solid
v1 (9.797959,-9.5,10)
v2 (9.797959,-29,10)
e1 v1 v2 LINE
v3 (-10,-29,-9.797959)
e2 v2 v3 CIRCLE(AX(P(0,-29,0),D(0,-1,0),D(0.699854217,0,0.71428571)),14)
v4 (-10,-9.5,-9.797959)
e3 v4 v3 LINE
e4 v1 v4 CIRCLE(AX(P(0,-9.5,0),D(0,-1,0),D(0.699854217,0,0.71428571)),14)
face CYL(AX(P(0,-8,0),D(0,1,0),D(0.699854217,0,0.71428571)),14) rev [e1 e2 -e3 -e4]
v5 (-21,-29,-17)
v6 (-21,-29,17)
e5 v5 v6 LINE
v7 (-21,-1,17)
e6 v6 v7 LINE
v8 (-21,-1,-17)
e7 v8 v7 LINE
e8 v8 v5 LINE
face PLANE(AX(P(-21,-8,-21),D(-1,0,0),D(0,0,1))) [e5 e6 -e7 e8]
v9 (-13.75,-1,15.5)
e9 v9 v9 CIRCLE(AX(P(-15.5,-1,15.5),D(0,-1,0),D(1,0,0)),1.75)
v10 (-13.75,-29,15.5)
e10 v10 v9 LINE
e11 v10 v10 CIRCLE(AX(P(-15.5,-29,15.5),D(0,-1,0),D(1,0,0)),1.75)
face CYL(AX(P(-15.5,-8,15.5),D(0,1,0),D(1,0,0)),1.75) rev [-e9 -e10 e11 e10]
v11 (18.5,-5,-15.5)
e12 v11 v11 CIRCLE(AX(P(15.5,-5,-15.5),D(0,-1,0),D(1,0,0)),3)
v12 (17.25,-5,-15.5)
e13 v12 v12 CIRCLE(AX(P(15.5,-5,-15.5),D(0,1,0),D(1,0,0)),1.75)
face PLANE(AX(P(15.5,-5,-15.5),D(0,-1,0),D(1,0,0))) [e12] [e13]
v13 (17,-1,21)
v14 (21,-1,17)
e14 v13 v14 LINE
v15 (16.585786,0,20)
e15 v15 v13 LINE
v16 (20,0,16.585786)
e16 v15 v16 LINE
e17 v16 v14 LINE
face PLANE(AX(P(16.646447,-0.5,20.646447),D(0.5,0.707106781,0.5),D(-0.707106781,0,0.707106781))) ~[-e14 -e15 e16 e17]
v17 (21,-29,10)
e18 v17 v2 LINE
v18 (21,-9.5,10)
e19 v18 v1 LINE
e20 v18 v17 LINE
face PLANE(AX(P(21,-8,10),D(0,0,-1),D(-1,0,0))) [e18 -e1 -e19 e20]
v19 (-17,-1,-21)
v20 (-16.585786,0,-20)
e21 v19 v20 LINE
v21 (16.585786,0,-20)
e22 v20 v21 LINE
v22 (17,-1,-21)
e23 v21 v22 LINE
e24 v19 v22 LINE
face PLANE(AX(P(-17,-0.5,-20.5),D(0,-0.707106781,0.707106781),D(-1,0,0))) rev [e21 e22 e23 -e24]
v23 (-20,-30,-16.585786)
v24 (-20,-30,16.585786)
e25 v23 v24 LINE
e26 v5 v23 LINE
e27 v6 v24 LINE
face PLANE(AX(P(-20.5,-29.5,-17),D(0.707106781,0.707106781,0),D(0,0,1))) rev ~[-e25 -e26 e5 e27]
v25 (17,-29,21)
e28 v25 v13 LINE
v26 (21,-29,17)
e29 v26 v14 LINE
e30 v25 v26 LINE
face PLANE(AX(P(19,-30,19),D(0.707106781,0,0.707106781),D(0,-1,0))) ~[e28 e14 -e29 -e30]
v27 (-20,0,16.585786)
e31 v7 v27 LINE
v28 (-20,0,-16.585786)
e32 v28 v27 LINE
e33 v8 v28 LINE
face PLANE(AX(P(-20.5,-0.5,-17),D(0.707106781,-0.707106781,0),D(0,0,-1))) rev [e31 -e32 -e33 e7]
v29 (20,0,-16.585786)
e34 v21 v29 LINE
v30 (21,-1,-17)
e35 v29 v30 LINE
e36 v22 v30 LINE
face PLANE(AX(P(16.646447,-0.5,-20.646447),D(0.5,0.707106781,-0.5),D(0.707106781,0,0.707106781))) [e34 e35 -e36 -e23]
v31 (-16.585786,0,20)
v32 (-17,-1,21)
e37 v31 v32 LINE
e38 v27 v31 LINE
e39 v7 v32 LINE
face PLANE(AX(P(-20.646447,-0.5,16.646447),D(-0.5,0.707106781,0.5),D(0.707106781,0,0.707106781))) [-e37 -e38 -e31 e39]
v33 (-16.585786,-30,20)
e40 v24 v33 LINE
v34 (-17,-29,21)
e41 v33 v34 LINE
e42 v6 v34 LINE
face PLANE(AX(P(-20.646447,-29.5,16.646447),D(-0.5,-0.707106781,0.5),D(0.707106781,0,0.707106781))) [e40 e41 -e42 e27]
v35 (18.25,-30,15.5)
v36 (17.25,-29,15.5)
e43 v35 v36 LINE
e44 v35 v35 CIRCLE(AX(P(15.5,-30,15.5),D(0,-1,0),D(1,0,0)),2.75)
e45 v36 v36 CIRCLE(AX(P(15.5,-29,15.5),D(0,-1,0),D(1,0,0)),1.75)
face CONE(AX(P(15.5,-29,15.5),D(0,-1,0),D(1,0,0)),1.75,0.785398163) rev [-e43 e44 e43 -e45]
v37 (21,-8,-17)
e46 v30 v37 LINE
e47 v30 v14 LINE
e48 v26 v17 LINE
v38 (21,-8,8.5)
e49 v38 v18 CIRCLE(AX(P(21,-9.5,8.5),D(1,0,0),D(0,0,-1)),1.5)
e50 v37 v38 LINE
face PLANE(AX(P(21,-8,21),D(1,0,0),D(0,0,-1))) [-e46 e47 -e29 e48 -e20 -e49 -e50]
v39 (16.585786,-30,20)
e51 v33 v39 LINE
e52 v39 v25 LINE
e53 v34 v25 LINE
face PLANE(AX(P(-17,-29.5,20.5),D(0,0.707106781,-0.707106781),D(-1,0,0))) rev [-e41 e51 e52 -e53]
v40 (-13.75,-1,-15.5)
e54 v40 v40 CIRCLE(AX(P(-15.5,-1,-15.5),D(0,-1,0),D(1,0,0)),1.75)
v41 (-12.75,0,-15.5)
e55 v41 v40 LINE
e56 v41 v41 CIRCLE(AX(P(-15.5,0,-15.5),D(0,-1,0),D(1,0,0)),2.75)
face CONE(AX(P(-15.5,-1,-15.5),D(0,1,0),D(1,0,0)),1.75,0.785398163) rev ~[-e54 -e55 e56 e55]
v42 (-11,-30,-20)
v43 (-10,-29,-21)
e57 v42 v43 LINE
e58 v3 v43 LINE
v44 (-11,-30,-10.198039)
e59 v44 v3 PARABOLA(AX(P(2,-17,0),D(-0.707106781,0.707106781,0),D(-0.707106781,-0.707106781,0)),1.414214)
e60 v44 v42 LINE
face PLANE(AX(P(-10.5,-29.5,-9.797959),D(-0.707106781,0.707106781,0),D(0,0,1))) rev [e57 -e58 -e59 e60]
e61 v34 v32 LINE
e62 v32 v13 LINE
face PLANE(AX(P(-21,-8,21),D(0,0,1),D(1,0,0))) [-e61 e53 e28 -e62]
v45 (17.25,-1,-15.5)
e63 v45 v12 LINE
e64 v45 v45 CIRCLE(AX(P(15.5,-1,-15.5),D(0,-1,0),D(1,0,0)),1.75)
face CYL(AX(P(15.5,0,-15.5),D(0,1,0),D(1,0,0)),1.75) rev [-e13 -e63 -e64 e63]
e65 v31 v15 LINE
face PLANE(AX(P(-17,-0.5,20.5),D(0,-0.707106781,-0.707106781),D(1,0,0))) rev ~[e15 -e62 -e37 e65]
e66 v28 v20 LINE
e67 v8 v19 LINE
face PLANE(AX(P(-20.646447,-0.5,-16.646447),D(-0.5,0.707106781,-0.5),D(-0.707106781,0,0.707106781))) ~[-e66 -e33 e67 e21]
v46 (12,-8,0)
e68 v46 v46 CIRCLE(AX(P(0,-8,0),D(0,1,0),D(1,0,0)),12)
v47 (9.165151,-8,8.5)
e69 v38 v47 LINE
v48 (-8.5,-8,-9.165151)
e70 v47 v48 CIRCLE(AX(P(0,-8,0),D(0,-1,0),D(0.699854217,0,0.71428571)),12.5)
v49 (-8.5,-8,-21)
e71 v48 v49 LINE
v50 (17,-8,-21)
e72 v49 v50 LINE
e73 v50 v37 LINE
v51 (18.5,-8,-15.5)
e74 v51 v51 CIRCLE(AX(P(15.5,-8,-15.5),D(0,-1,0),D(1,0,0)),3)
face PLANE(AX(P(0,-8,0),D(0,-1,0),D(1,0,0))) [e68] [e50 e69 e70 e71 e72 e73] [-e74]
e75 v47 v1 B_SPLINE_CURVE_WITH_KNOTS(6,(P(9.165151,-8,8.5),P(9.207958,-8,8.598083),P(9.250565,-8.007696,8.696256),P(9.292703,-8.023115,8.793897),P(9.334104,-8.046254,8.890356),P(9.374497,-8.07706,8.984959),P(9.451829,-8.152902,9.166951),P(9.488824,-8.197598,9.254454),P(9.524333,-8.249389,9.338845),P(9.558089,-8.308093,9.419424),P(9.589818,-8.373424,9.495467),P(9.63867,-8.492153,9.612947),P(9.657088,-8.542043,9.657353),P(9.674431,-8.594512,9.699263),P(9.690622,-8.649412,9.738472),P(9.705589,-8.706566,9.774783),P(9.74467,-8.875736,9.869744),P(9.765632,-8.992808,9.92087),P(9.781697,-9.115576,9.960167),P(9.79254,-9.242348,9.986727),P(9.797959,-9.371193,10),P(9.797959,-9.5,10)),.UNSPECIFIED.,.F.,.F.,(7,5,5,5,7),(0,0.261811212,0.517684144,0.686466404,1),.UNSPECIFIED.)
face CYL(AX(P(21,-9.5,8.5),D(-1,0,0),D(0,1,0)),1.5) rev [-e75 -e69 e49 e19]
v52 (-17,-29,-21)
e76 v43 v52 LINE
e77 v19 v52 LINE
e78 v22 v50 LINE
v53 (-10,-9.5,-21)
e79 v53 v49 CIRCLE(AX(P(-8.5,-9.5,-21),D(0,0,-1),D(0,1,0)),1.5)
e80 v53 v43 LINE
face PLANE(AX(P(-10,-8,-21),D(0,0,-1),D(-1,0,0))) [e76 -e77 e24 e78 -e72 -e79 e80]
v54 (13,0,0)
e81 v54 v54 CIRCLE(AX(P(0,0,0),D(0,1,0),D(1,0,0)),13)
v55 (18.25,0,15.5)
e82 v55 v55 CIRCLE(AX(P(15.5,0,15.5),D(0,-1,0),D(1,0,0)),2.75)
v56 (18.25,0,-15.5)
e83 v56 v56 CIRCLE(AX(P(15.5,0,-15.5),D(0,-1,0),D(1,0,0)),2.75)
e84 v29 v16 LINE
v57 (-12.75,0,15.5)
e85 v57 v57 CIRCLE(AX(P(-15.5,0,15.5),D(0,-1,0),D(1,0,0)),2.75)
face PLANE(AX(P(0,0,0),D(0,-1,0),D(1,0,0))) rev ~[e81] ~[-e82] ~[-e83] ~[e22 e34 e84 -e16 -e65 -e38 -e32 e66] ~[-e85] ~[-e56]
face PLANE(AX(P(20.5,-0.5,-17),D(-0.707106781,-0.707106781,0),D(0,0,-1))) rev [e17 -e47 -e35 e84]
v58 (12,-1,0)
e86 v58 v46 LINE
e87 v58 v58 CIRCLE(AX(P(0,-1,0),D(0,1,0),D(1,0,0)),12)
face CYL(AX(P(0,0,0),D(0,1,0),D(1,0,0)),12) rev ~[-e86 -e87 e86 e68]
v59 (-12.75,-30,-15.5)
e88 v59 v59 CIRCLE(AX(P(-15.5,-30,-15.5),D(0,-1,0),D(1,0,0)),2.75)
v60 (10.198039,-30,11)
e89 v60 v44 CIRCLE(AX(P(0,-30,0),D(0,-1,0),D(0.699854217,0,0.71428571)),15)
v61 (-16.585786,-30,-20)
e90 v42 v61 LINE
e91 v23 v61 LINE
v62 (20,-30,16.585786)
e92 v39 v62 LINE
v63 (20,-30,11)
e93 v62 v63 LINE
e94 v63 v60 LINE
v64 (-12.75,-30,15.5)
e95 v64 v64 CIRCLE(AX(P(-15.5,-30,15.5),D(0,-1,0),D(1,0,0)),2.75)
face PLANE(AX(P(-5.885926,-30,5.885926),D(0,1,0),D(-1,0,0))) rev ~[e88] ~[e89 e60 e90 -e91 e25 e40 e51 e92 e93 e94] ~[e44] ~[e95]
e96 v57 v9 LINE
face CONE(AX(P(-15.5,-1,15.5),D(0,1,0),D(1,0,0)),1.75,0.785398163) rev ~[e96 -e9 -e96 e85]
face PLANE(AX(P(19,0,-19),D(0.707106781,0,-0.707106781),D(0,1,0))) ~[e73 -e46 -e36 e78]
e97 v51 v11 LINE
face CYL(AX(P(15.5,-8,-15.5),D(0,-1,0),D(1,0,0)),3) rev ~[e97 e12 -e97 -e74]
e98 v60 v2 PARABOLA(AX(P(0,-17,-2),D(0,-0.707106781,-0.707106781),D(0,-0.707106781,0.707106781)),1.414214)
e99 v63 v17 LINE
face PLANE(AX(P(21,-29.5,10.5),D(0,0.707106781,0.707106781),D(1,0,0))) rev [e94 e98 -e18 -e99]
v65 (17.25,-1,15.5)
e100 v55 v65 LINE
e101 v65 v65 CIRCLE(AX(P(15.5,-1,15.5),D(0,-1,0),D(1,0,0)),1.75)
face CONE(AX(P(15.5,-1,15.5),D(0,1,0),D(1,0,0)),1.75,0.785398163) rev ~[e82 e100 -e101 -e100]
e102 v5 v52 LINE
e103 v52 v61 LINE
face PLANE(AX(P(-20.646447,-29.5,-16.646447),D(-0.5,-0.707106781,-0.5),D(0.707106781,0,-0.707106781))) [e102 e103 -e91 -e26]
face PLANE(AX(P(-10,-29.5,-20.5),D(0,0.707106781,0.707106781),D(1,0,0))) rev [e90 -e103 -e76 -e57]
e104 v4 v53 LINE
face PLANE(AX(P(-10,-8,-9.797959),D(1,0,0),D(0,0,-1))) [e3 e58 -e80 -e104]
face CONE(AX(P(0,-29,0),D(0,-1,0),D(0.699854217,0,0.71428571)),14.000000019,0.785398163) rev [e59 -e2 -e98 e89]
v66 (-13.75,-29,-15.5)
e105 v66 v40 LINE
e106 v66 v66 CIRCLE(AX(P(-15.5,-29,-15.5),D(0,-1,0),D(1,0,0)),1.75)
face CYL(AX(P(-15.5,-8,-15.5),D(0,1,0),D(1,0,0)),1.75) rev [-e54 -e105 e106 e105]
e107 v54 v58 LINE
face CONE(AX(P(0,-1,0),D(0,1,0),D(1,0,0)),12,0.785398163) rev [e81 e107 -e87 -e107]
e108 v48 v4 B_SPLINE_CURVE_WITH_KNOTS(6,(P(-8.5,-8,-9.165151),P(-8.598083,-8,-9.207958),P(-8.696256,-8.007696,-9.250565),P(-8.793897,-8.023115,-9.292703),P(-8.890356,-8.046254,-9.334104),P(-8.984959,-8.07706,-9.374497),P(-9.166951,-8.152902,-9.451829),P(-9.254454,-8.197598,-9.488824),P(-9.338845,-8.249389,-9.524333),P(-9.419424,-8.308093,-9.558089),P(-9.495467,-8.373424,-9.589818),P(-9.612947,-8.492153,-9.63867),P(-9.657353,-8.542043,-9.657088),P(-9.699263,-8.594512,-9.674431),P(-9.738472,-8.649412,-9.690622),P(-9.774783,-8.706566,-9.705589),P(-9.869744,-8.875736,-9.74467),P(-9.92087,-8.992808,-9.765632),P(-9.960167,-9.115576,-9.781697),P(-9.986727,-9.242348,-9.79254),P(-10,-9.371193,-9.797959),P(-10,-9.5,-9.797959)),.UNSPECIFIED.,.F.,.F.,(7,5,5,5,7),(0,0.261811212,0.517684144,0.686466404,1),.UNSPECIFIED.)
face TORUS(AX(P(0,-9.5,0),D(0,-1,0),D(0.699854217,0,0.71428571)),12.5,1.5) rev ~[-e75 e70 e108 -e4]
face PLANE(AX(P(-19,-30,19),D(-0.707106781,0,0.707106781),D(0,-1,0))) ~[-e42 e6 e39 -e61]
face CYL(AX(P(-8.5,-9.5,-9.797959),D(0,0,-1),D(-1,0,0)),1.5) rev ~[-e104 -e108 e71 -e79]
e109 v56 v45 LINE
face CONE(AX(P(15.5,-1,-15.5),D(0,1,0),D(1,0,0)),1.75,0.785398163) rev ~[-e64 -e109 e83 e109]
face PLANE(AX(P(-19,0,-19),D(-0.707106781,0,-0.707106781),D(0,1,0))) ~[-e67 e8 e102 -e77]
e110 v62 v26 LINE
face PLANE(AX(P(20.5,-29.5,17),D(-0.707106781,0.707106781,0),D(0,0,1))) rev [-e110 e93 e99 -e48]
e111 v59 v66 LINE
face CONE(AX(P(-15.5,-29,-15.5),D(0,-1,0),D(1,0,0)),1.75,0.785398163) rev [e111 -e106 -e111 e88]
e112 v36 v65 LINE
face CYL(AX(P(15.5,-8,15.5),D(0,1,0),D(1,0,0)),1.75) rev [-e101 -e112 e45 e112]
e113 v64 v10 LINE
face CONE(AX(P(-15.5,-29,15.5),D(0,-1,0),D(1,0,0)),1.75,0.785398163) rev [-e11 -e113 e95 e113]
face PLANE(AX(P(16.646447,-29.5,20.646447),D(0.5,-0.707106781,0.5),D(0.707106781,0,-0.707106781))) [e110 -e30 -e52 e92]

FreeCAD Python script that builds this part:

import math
import FreeCAD as App
import Part
import Sketcher

V = App.Vector


def edges_at(feature, points):
    """Names of the edges that pass closest to the given points."""
    edges = feature.Shape.Edges
    near = lambda p: min(range(len(edges)), key=lambda i: edges[i].distToShape(Part.Vertex(*p))[0])
    return sorted({f"Edge{near(p) + 1}" for p in points})


def add_polygon(sketch, points):
    """Adds a closed chain of lines whose ends are joined by coincident constraints."""
    first, n = sketch.GeometryCount, len(points)
    for a, b in zip(points, points[1:] + points[:1]):
        sketch.addGeometry(Part.LineSegment(App.Vector(*a, 0), App.Vector(*b, 0)), False)
    for i in range(n):
        sketch.addConstraint(Sketcher.Constraint("Coincident", first + i, 2, first + (i + 1) % n, 1))

doc = App.newDocument("Part")
body = doc.addObject("PartDesign::Body", "Body")

# Sketch on XZ plane
sketch1 = body.newObject("Sketcher::SketchObject", "Sketch")
sketch1.AttachmentSupport = (doc.getObject("XZ_Plane"), [""])
sketch1.MapMode = "FlatFace"
add_polygon(sketch1, [(-21, 21), (-21, -21), (21, -21), (21, 21)])  # lines 0-3
sketch1.addGeometry(Part.Circle(V(-15.5, -15.5, 0), V(0, 0, 1), 1.8), False)  # 4
sketch1.addGeometry(Part.Circle(V(15.5, -15.5, 0), V(0, 0, 1), 1.8), False)  # 5
sketch1.addGeometry(Part.Circle(V(-15.5, 15.5, 0), V(0, 0, 1), 1.8), False)  # 6
sketch1.addGeometry(Part.Circle(V(15.5, 15.5, 0), V(0, 0, 1), 1.8), False)  # 7
sketch1.addConstraint([
    Sketcher.Constraint("Vertical", 0),
    Sketcher.Constraint("Horizontal", 1),
    Sketcher.Constraint("Vertical", 2),
    Sketcher.Constraint("Horizontal", 3),
    Sketcher.Constraint("Equal", 4, 5),
    Sketcher.Constraint("Equal", 5, 6),
    Sketcher.Constraint("Equal", 6, 7),
    Sketcher.Constraint("Symmetric", 5, 3, 6, 3, -1, 1),
    Sketcher.Constraint("Symmetric", 4, 3, 7, 3, -1, 1),
    Sketcher.Constraint("Symmetric", 0, 2, 2, 2, -1, 1),
    Sketcher.Constraint("Symmetric", 4, 3, 5, 3, -2),
    Sketcher.Constraint("Equal", 3, 0),
    Sketcher.Constraint("Diameter", 4, 3.5),
    Sketcher.Constraint("DistanceX", 1, 1, 1, 2, 42.0),
    Sketcher.Constraint("DistanceX", 4, 3, 5, 3, 31.0),
    Sketcher.Constraint("DistanceY", 4, 3, 6, 3, 31.0),
])
pad1 = body.newObject("PartDesign::Pad", "Pad")
pad1.Profile = sketch1
pad1.Length = 8

# Sketch on XZ plane
sketch2 = body.newObject("Sketcher::SketchObject", "Sketch001")
sketch2.AttachmentSupport = (doc.getObject("XZ_Plane"), [""])
sketch2.MapMode = "FlatFace"
sketch2.addGeometry(Part.Circle(V(0, 0, 0), V(0, 0, 1), 12), False)
sketch2.addConstraint([
    Sketcher.Constraint("Coincident", 0, 3, -1, 1),
    Sketcher.Constraint("Diameter", 0, 24.0),
])
pocket1 = body.newObject("PartDesign::Pocket", "Pocket")
pocket1.Profile = sketch2
pocket1.Type = "ThroughAll"
pocket1.Reversed = True

# Sketch on XZ plane
sketch3 = body.newObject("Sketcher::SketchObject", "Sketch002")
sketch3.AttachmentSupport = (doc.getObject("XZ_Plane"), [""])
sketch3.MapMode = "FlatFace"
sketch3.AttachmentOffset = App.Placement(V(0, 0, 8), App.Rotation())
sketch3.addGeometry([
    Part.LineSegment(V(-21, 21, 0), V(-21, -21, 0)),  # 0
    Part.LineSegment(V(-21, -21, 0), V(-10, -21, 0)),  # 1
    Part.LineSegment(V(-10, -21, 0), V(-10, -9.8, 0)),  # 2
    Part.ArcOfCircle(Part.Circle(V(0, 0, 0), V(0, 0, 1), 14), math.radians(46), math.radians(224)),  # 3
    Part.LineSegment(V(9.8, 10, 0), V(21, 10, 0)),  # 4
    Part.LineSegment(V(21, 10, 0), V(21, 21, 0)),  # 5
    Part.LineSegment(V(21, 21, 0), V(-21, 21, 0)),  # 6
    Part.Circle(V(-15.5, -15.5, 0), V(0, 0, 1), 1.8),  # 7
    Part.Circle(V(15.5, 15.5, 0), V(0, 0, 1), 1.8),  # 8
    Part.Circle(V(-15.5, 15.5, 0), V(0, 0, 1), 1.8),  # 9
], False)
sketch3.addConstraint([
    Sketcher.Constraint("Coincident", 0, 2, 1, 1),
    Sketcher.Constraint("Coincident", 1, 2, 2, 1),
    Sketcher.Constraint("Coincident", 2, 2, 3, 2),
    Sketcher.Constraint("Coincident", 3, 1, 4, 1),
    Sketcher.Constraint("Coincident", 4, 2, 5, 1),
    Sketcher.Constraint("Coincident", 5, 2, 6, 1),
    Sketcher.Constraint("Coincident", 6, 2, 0, 1),
    Sketcher.Constraint("Vertical", 0),
    Sketcher.Constraint("Horizontal", 1),
    Sketcher.Constraint("Vertical", 2),
    Sketcher.Constraint("Horizontal", 4),
    Sketcher.Constraint("Vertical", 5),
    Sketcher.Constraint("Horizontal", 6),
    Sketcher.Constraint("Coincident", 3, 3, -1, 1),
    Sketcher.Constraint("Equal", 7, 8),
    Sketcher.Constraint("Equal", 8, 9),
    Sketcher.Constraint("Symmetric", 7, 3, 8, 3, -1, 1),
    Sketcher.Constraint("Symmetric", 0, 2, 5, 2, -1, 1),
    Sketcher.Constraint("Symmetric", 8, 3, 9, 3, -2),
    Sketcher.Constraint("Equal", 6, 0),
    Sketcher.Constraint("Equal", 4, 2),
    Sketcher.Constraint("Radius", 3, 14.0),
    Sketcher.Constraint("Diameter", 7, 3.5),
    Sketcher.Constraint("DistanceX", 1, 1, 1, 2, 11.0),
    Sketcher.Constraint("DistanceX", 6, 2, 6, 1, 42.0),
    Sketcher.Constraint("DistanceX", 7, 3, 8, 3, 31.0),
    Sketcher.Constraint("DistanceY", 7, 3, 8, 3, 31.0),
])
pad2 = body.newObject("PartDesign::Pad", "Pad001")
pad2.Profile = sketch3
pad2.Length = 22

# Sketch on XZ plane
sketch4 = body.newObject("Sketcher::SketchObject", "Sketch003")
sketch4.AttachmentSupport = (doc.getObject("XZ_Plane"), [""])
sketch4.MapMode = "FlatFace"
sketch4.AttachmentOffset = App.Placement(V(0, 0, 8), App.Rotation())
sketch4.addGeometry(Part.Circle(V(15.5, -15.5, 0), V(0, 0, 1), 3), False)
sketch4.addConstraint([
    Sketcher.Constraint("Diameter", 0, 6.0),
    Sketcher.Constraint("DistanceX", -1, 1, 0, 3, 15.5),
    Sketcher.Constraint("DistanceY", 0, 3, -1, 1, 15.5),
])
pocket2 = body.newObject("PartDesign::Pocket", "Pocket001")
pocket2.Profile = sketch4
pocket2.Length = 3
doc.recompute()

chamfer = body.newObject("PartDesign::Chamfer", "Chamfer")
chamfer.Base = (pocket2, edges_at(pocket2, [
    (21, -4, -21),
    (21, -15, 21),
    (-21, -15, 21),
    (-21, -15, -21),
]))
chamfer.Size = 4
doc.recompute()

chamfer2 = body.newObject("PartDesign::Chamfer", "Chamfer001")
chamfer2.Base = (chamfer, edges_at(chamfer, [
    (0, 0, 21),
    (-19, 0, 19),
    (19, 0, 19),
    (-21, 0, 0),
    (21, 0, 0),
    (-19, 0, -19),
    (19, 0, -19),
    (0, 0, -21),
    (13.75, 0, -15.5),
    (-12, 0, 0),
    (-17.25, 0, -15.5),
    (-17.25, 0, 15.5),
    (13.75, 0, 15.5),
]))
chamfer2.Size = 1
doc.recompute()

chamfer3 = body.newObject("PartDesign::Chamfer", "Chamfer002")
chamfer3.Base = (chamfer2, edges_at(chamfer2, [
    (-21, -30, 0),
    (-19, -30, -19),
    (-19, -30, 19),
    (-13.5, -30, -21),
    (0, -30, 21),
    (-10, -30, -15.399),
    (19, -30, 19),
    (-9.899, -30, 9.899),
    (21, -30, 13.5),
    (15.399, -30, 10),
    (13.75, -30, 15.5),
    (-17.25, -30, -15.5),
    (-17.25, -30, 15.5),
]))
chamfer3.Size = 1
doc.recompute()

fillet = body.newObject("PartDesign::Fillet", "Fillet")
fillet.Base = (chamfer3, edges_at(chamfer3, [(-9.899, -8, 9.899), (15.399, -8, 10), (-10, -8, -15.399)]))
fillet.Radius = 1.5

doc.recompute()
